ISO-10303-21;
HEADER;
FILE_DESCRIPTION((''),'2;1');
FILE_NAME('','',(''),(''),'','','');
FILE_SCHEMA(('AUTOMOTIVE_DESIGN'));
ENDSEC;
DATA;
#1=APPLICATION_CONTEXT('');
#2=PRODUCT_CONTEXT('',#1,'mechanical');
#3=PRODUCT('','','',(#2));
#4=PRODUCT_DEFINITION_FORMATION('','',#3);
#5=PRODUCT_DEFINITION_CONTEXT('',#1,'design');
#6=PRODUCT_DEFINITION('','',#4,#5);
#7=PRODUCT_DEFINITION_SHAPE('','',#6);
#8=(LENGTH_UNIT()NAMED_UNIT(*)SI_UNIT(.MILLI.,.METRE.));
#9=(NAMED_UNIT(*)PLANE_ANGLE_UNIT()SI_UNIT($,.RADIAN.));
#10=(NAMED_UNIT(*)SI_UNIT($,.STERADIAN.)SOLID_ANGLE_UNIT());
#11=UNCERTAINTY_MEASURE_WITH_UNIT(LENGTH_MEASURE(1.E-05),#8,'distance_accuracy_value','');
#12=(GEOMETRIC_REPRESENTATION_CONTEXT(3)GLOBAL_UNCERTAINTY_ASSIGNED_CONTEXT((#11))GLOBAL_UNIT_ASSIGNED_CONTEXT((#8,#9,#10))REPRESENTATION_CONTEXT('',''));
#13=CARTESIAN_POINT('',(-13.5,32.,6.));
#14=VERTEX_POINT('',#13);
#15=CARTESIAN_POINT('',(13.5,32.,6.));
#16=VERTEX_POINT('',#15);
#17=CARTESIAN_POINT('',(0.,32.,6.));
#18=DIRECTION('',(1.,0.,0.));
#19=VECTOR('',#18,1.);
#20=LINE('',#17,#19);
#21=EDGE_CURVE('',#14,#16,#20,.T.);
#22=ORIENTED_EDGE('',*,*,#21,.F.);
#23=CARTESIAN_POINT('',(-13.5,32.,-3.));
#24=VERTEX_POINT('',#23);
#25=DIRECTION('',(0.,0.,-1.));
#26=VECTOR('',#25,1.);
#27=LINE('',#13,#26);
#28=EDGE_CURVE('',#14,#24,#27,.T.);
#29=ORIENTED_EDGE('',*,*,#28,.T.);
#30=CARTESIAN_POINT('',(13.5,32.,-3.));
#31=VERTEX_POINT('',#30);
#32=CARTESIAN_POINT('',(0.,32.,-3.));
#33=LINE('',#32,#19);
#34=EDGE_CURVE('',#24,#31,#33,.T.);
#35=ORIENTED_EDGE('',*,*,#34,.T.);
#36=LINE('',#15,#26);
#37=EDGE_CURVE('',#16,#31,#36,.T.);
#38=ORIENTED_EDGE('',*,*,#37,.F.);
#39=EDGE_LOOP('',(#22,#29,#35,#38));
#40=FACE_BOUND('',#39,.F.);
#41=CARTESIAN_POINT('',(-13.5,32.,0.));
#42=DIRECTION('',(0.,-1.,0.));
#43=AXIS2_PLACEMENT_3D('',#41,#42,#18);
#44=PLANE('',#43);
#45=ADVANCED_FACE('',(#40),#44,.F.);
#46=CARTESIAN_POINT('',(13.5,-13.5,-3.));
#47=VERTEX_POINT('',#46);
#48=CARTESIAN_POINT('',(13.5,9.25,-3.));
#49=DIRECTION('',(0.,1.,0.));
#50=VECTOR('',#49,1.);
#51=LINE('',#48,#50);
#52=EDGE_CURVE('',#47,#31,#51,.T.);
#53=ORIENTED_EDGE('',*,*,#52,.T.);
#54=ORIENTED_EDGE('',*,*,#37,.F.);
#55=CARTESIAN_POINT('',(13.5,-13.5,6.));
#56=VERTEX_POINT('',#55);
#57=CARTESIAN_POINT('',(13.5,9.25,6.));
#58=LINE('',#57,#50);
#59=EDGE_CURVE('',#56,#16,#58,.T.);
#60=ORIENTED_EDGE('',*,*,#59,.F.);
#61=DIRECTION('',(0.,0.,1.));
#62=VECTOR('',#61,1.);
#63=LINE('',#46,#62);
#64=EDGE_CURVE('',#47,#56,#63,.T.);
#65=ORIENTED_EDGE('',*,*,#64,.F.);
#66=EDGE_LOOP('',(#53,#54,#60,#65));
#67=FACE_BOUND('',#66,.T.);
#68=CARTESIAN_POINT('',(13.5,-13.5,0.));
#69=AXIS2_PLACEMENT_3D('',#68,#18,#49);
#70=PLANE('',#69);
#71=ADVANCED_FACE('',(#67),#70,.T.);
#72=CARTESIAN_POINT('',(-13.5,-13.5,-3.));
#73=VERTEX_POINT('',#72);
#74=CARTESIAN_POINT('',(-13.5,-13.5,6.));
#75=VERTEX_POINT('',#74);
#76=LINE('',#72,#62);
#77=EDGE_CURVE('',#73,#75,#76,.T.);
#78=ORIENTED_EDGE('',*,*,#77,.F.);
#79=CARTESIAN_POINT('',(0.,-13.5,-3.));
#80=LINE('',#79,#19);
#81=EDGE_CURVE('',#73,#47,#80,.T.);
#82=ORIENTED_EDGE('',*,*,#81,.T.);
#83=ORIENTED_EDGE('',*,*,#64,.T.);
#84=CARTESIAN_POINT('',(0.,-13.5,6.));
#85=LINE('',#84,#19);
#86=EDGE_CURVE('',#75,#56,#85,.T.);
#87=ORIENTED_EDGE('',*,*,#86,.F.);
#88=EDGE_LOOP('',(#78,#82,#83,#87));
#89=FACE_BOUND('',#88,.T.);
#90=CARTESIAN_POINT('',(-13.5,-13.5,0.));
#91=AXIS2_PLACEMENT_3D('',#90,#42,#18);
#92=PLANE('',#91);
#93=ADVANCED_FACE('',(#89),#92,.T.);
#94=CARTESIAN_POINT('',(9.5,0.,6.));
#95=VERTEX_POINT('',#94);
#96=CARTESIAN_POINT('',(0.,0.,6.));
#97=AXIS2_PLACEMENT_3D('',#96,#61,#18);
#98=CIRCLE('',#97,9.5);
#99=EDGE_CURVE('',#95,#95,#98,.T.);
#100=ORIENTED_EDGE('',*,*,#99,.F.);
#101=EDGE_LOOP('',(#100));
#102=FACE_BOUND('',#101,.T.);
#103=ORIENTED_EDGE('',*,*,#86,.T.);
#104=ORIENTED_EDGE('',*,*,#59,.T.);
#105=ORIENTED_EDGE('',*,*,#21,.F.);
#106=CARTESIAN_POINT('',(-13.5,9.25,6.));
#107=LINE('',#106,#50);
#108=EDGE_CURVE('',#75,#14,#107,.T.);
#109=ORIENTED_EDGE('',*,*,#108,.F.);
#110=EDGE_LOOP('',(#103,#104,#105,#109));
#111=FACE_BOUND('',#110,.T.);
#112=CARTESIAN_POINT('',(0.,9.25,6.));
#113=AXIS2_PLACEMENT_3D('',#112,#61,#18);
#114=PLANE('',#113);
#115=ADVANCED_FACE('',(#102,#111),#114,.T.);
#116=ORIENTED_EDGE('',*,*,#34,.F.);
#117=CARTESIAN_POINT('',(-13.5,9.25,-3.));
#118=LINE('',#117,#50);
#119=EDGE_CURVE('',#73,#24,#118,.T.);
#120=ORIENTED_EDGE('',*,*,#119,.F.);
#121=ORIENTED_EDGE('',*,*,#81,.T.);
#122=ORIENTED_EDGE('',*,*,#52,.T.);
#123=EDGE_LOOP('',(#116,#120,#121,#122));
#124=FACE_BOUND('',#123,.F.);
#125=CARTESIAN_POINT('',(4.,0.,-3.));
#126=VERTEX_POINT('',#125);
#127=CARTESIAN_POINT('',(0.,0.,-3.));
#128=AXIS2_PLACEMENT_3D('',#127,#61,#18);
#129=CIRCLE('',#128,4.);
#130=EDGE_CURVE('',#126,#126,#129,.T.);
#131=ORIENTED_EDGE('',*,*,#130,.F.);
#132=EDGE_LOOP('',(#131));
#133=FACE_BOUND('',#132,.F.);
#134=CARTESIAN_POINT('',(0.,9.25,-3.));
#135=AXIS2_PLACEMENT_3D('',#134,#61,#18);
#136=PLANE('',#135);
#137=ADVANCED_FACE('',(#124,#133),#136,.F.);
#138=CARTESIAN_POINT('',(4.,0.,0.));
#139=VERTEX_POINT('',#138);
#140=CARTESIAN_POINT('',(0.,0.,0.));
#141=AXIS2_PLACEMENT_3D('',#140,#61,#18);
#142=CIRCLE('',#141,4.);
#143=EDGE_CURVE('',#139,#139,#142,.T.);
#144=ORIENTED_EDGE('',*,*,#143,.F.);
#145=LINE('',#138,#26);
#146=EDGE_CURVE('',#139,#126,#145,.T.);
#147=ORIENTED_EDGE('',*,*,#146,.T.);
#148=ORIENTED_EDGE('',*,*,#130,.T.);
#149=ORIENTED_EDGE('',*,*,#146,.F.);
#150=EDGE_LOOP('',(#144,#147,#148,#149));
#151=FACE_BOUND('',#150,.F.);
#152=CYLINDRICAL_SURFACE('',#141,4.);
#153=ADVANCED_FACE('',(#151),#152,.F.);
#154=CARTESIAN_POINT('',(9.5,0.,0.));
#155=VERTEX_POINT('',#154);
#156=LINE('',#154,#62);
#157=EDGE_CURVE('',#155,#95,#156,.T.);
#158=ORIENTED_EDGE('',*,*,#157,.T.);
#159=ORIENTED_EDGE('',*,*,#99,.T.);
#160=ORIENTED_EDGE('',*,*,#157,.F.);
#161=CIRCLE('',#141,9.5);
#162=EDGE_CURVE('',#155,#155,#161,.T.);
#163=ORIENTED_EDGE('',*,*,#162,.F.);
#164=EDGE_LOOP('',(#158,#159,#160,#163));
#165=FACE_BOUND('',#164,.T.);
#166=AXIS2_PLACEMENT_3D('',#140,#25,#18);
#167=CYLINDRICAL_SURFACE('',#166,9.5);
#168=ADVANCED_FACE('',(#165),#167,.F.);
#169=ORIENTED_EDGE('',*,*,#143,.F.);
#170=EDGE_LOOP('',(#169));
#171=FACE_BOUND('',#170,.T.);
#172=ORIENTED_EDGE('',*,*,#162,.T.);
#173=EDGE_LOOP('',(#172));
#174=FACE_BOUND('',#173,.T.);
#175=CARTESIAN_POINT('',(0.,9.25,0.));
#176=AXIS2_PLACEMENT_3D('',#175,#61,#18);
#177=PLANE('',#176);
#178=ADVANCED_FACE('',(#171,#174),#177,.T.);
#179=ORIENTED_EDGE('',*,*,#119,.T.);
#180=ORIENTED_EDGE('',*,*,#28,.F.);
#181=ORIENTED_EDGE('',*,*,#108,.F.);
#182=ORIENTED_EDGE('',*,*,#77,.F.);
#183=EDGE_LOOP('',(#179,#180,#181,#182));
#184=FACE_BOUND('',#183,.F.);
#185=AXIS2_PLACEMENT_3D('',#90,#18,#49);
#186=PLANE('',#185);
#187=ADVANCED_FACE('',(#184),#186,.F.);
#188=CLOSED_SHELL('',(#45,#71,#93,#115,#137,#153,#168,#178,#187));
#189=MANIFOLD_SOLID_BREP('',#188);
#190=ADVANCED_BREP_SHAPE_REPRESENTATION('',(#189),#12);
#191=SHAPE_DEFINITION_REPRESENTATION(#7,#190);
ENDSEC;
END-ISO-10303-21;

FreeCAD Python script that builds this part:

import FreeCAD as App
import Part
import Sketcher


def add_polygon(sketch, points):
    """Adds a closed chain of lines whose ends are joined by coincident constraints."""
    first, n = sketch.GeometryCount, len(points)
    for a, b in zip(points, points[1:] + points[:1]):
        sketch.addGeometry(Part.LineSegment(App.Vector(*a, 0), App.Vector(*b, 0)), False)
    for i in range(n):
        sketch.addConstraint(Sketcher.Constraint("Coincident", first + i, 2, first + (i + 1) % n, 1))

doc = App.newDocument("Part")
body = doc.addObject("PartDesign::Body", "Body")

# Sketch on XY plane
sketch1 = body.newObject("Sketcher::SketchObject", "Sketch")
sketch1.AttachmentSupport = (doc.getObject("XY_Plane"), [""])
sketch1.MapMode = "FlatFace"
add_polygon(sketch1, [(-13.5, 32), (-13.5, -13.5), (13.5, -13.5), (13.5, 32)])  # lines 0-3
sketch1.addGeometry(Part.Circle(App.Vector(0, 0, 0), App.Vector(0, 0, 1), 9.5), False)  # 4
sketch1.addConstraint([
    Sketcher.Constraint("Vertical", 0),
    Sketcher.Constraint("Horizontal", 1),
    Sketcher.Constraint("Vertical", 2),
    Sketcher.Constraint("Horizontal", 3),
    Sketcher.Constraint("Coincident", 4, 3, -1, 1),
    Sketcher.Constraint("Diameter", 4, 19.0),
    Sketcher.Constraint("DistanceX", 1, 1, 1, 2, 27.0),
    Sketcher.Constraint("DistanceY", 0, 2, 0, 1, 45.5),
    Sketcher.Constraint("DistanceY", -1, 1, 2, 2, 32.0),
    Sketcher.Constraint("DistanceX", 0, 2, -1, 1, 13.5),
])
pad1 = body.newObject("PartDesign::Pad", "Pad")
pad1.Profile = sketch1
pad1.Length = 6

# Sketch on XY plane
sketch2 = body.newObject("Sketcher::SketchObject", "Sketch001")
sketch2.AttachmentSupport = (doc.getObject("XY_Plane"), [""])
sketch2.MapMode = "FlatFace"
add_polygon(sketch2, [(-13.5, 32), (-13.5, -13.5), (13.5, -13.5), (13.5, 32)])  # lines 0-3
sketch2.addGeometry(Part.Circle(App.Vector(0, 0, 0), App.Vector(0, 0, 1), 4), False)  # 4
sketch2.addConstraint([
    Sketcher.Constraint("Vertical", 0),
    Sketcher.Constraint("Horizontal", 1),
    Sketcher.Constraint("Vertical", 2),
    Sketcher.Constraint("Horizontal", 3),
    Sketcher.Constraint("Coincident", 4, 3, -1, 1),
    Sketcher.Constraint("Diameter", 4, 8.0),
    Sketcher.Constraint("DistanceX", 1, 1, 1, 2, 27.0),
    Sketcher.Constraint("DistanceY", 0, 2, 0, 1, 45.5),
    Sketcher.Constraint("DistanceY", -1, 1, 2, 2, 32.0),
    Sketcher.Constraint("DistanceX", 0, 2, -1, 1, 13.5),
])
pad2 = body.newObject("PartDesign::Pad", "Pad001")
pad2.Profile = sketch2
pad2.Length = 3
pad2.Reversed = True

doc.recompute()
